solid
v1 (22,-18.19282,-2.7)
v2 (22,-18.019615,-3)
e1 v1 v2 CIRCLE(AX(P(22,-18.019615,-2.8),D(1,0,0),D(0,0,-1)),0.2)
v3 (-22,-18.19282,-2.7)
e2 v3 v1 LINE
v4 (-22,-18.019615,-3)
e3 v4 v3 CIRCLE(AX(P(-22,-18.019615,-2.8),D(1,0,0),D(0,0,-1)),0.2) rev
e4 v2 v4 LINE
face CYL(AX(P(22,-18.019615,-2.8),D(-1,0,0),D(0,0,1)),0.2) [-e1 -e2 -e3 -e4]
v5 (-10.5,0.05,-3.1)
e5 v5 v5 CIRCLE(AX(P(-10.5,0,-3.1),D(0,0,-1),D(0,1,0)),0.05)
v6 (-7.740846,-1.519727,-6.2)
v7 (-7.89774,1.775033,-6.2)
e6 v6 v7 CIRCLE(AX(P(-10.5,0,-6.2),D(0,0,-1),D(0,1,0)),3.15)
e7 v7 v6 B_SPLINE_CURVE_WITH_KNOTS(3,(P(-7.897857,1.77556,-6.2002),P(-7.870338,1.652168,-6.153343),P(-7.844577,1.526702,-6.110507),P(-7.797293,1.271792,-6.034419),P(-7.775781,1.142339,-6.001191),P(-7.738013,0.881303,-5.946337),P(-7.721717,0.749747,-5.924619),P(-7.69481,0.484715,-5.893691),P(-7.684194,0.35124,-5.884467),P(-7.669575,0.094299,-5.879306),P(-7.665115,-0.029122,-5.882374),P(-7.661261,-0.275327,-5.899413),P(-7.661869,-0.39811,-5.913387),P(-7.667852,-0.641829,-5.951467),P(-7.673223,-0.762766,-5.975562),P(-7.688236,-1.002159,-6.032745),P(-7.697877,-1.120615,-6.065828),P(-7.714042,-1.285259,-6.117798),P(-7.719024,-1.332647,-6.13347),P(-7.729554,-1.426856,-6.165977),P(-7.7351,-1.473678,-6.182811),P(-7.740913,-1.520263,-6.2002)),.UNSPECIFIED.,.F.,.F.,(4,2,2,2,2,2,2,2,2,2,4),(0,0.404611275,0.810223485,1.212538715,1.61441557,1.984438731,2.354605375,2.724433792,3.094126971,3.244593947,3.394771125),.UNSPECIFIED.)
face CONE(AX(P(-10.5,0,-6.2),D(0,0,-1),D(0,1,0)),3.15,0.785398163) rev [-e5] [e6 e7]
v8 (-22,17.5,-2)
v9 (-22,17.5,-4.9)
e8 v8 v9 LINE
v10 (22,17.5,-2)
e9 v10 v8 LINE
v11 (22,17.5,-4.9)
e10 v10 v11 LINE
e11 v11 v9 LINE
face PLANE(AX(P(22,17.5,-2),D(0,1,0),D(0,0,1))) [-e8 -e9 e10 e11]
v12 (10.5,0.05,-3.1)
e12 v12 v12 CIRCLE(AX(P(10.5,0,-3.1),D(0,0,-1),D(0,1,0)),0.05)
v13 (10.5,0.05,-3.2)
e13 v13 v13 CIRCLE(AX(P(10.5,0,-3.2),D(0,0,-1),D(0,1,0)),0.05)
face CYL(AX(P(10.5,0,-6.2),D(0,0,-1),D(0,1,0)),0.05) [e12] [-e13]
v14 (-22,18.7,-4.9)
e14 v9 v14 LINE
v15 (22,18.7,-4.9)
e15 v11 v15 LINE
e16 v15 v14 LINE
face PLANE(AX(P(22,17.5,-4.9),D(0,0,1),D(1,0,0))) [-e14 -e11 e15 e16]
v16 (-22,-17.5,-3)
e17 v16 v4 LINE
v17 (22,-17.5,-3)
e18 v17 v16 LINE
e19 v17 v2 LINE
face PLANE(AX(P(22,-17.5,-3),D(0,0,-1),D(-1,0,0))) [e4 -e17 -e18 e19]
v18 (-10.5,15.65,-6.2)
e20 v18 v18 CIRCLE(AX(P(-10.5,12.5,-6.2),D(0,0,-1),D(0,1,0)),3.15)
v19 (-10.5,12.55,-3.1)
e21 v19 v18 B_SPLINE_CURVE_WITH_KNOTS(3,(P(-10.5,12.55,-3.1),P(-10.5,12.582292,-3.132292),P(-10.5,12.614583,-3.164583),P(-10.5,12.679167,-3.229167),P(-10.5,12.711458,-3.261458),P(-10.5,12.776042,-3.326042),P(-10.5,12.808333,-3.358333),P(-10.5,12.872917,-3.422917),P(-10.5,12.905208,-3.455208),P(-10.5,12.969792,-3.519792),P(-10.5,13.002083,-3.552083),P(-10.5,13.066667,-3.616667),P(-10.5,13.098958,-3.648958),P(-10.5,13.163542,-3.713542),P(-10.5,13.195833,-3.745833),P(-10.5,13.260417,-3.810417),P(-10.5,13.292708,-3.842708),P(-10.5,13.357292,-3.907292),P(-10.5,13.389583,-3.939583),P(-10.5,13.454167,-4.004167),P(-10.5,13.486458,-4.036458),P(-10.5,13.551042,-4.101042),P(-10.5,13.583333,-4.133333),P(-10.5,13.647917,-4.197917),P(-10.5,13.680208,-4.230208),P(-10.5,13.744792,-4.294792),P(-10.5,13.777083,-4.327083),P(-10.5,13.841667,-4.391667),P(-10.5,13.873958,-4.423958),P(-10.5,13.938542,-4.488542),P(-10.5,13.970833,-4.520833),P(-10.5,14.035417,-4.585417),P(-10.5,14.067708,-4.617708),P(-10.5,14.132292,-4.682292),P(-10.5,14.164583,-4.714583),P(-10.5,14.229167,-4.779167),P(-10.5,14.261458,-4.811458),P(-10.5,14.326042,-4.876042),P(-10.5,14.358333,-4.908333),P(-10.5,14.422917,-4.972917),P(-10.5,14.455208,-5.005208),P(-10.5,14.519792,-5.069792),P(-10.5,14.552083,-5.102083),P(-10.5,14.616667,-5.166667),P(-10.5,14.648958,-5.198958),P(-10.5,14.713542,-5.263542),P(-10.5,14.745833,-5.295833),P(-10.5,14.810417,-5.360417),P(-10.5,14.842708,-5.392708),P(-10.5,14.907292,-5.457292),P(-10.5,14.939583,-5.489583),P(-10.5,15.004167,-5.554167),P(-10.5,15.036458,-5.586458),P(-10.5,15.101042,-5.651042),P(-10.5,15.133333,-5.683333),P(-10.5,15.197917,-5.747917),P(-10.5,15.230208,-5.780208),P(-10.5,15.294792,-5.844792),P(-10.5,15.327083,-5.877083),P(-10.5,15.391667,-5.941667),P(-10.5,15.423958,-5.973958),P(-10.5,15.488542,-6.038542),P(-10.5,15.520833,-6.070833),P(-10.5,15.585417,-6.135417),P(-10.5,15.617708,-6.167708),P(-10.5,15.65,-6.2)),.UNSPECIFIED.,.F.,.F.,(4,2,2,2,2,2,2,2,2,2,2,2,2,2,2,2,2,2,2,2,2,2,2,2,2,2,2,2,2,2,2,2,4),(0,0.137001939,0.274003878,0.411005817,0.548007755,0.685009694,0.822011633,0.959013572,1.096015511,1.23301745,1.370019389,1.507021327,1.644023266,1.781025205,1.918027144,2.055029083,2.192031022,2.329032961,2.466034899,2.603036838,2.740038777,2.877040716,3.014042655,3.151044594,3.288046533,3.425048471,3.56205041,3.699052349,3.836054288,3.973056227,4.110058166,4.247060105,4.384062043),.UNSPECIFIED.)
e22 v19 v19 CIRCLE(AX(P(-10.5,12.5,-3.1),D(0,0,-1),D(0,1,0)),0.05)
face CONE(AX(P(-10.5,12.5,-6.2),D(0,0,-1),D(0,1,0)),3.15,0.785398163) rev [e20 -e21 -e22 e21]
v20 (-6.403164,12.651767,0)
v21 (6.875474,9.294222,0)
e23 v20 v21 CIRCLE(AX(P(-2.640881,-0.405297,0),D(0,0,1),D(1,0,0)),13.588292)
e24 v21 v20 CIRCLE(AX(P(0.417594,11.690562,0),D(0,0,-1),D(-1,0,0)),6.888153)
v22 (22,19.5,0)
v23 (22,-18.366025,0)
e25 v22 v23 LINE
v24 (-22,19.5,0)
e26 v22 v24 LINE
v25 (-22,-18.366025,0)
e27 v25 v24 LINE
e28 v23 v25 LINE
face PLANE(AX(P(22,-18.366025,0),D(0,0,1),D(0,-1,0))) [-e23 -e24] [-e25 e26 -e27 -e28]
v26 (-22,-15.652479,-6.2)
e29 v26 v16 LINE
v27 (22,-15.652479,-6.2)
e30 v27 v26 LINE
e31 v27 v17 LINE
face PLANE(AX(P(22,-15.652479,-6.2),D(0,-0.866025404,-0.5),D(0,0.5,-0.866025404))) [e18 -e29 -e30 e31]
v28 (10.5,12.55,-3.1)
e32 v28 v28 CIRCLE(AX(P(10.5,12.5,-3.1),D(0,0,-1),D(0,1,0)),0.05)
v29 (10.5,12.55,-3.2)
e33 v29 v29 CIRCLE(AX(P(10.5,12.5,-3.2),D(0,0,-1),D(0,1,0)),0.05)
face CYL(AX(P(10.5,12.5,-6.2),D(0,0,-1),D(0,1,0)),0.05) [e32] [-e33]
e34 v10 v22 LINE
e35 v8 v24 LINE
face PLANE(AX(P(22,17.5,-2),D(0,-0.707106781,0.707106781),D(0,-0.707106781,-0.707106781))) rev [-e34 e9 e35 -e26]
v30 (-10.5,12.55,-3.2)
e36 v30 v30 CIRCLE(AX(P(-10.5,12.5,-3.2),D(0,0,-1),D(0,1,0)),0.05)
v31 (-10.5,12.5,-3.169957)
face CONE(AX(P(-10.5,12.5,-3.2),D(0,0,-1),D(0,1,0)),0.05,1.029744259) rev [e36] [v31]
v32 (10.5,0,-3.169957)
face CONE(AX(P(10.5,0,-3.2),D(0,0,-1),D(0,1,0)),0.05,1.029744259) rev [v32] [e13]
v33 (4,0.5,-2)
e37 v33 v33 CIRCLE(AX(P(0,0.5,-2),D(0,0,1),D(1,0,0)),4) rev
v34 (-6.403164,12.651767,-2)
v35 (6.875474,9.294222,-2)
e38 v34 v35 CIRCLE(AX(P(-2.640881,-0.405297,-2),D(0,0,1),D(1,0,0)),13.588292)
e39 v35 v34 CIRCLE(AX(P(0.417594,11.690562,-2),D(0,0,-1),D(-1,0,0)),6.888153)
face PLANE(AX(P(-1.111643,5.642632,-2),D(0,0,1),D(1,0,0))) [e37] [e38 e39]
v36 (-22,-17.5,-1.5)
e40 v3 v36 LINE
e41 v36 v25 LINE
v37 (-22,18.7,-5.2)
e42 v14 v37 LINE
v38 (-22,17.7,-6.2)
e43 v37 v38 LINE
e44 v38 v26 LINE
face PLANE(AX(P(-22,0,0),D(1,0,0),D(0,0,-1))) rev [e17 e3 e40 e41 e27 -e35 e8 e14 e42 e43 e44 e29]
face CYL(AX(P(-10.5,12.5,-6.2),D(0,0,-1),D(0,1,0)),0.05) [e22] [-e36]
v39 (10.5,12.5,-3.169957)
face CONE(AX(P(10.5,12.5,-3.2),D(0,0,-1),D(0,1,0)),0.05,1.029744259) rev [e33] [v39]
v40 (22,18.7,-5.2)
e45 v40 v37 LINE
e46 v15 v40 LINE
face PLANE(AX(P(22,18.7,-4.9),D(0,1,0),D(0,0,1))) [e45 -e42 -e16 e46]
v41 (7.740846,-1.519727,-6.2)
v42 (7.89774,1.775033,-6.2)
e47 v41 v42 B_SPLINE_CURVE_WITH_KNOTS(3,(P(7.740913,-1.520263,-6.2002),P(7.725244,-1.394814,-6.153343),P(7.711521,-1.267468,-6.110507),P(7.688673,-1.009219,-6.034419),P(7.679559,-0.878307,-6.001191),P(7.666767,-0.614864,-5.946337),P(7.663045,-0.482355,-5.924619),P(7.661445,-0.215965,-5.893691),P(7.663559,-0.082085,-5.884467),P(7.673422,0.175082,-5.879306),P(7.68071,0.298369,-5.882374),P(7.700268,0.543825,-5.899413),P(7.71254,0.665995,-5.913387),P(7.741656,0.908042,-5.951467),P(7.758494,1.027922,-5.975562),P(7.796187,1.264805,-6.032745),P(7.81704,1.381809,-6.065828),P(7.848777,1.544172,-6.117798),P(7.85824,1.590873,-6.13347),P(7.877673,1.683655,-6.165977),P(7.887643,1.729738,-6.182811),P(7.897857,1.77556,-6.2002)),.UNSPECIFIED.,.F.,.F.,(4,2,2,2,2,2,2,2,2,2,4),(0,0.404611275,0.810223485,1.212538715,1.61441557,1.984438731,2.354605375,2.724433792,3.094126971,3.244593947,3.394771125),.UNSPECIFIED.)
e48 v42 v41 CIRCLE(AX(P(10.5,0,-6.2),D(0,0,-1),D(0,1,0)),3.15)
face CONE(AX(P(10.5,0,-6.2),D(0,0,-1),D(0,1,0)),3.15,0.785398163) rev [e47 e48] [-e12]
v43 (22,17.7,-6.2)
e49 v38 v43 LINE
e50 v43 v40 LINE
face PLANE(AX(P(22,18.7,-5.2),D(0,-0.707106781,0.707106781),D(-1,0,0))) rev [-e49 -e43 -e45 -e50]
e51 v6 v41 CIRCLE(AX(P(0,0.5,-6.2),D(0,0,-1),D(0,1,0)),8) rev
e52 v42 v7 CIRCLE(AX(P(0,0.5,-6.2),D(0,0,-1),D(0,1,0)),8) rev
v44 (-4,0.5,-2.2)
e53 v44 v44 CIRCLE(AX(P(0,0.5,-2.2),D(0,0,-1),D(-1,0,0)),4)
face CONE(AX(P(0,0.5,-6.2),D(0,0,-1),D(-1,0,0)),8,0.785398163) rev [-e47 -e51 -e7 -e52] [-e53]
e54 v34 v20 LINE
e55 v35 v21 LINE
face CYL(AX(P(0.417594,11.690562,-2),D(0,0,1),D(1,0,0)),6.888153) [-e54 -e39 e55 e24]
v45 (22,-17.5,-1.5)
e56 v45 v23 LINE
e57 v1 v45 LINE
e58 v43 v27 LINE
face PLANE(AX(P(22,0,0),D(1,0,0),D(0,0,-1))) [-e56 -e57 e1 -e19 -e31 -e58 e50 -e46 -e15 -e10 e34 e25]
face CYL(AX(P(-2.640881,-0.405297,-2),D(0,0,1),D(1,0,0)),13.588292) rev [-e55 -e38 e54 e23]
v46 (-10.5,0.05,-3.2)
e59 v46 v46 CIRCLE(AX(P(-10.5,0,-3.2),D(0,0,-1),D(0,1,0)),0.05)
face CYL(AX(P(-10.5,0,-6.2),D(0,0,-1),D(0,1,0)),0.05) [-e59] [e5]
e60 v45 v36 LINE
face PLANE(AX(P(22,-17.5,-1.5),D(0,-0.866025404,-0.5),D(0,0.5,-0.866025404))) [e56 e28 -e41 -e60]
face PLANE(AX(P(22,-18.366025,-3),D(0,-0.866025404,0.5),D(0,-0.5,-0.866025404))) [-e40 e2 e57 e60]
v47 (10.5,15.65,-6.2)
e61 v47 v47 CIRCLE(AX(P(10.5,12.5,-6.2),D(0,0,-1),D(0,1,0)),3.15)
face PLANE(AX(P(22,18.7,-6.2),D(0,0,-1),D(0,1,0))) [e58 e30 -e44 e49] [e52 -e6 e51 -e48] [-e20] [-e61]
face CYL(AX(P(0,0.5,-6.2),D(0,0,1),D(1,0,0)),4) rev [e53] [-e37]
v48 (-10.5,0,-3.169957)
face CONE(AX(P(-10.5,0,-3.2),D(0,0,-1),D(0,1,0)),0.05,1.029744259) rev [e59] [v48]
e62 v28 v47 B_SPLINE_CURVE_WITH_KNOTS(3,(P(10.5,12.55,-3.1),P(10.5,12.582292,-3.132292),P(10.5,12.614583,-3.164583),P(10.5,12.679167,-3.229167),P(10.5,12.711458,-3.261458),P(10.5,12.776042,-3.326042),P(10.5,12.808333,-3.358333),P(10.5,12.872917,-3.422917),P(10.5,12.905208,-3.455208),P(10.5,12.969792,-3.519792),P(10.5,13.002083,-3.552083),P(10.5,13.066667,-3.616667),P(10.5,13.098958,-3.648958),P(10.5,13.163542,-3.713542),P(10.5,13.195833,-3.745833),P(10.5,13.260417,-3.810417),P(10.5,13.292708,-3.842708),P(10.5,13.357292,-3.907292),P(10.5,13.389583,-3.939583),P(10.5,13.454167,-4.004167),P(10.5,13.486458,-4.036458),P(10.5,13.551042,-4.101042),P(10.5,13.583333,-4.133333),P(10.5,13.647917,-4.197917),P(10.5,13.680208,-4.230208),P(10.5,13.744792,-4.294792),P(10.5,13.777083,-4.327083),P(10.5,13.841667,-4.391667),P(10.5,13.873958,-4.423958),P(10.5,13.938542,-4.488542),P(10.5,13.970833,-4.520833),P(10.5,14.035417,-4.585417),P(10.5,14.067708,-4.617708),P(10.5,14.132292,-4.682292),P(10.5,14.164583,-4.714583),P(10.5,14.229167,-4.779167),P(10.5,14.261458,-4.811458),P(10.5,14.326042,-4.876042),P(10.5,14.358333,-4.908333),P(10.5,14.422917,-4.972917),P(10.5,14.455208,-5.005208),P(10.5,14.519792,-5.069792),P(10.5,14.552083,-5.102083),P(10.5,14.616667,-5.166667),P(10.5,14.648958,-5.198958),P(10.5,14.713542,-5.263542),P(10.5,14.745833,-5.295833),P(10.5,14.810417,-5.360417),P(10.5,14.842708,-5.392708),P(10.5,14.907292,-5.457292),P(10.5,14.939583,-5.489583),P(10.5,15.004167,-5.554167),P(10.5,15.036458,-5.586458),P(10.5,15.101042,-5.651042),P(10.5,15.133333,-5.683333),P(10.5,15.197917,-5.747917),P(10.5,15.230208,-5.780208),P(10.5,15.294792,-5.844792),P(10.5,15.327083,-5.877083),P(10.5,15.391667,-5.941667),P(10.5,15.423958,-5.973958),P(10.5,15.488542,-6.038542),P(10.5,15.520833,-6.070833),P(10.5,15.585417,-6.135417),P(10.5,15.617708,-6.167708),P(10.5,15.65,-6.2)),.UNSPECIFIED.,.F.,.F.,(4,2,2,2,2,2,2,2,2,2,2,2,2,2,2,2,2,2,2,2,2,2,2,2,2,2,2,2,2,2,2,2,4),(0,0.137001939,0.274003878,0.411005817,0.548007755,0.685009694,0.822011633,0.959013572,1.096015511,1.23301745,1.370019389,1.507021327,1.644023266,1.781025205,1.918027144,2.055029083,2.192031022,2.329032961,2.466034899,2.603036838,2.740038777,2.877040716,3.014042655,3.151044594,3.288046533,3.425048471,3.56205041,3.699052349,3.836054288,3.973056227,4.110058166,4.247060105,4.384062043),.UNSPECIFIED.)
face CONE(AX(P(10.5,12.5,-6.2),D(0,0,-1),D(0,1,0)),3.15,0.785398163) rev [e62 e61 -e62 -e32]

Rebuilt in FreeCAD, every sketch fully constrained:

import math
import FreeCAD as App
import Part
import Sketcher
Q = App.Units.Quantity


def edges_at(feature, points):
    """Names of the edges that pass closest to the given points."""
    edges = feature.Shape.Edges
    near = lambda p: min(range(len(edges)), key=lambda i: edges[i].distToShape(Part.Vertex(*p))[0])
    return sorted({f"Edge{near(p) + 1}" for p in points})


def add_polygon(sketch, points):
    """Adds a closed chain of lines whose ends are joined by coincident constraints."""
    first, n = sketch.GeometryCount, len(points)
    for a, b in zip(points, points[1:] + points[:1]):
        sketch.addGeometry(Part.LineSegment(App.Vector(*a, 0), App.Vector(*b, 0)), False)
    for i in range(n):
        sketch.addConstraint(Sketcher.Constraint("Coincident", first + i, 2, first + (i + 1) % n, 1))

doc = App.newDocument("Part")
body = doc.addObject("PartDesign::Body", "Body")

# Sketch on YZ plane
sketch1 = doc.addObject("Sketcher::SketchObject", "Sketch")
body.addObject(sketch1)
sketch1.AttachmentSupport = (doc.YZ_Plane, [""])
sketch1.MapMode = "FlatFace"
add_polygon(sketch1, [(17.5, -4.9), (17.5, -2), (19.5, 0), (-18.4, 0), (-17.5, -1.5), (-18.4, -3), (-17.5, -3), (-15.7, -6.2), (18.7, -6.2), (18.7, -4.9)])  # lines 0-9
sketch1.addConstraint(Sketcher.Constraint("Vertical", 0))
sketch1.addConstraint(Sketcher.Constraint("Horizontal", 2))
sketch1.addConstraint(Sketcher.Constraint("Horizontal", 5))
sketch1.addConstraint(Sketcher.Constraint("Horizontal", 7))
sketch1.addConstraint(Sketcher.Constraint("Vertical", 8))
sketch1.addConstraint(Sketcher.Constraint("Horizontal", 9))
sketch1.addConstraint(Sketcher.Constraint("PointOnObject", 1, 2, -1))
sketch1.addConstraint(Sketcher.Constraint("Parallel", 3, 6))
sketch1.addConstraint(Sketcher.Constraint("Vertical", 2, 2, 4, 2))
sketch1.addConstraint(Sketcher.Constraint("Vertical", 3, 2, 5, 2))
sketch1.addConstraint(Sketcher.Constraint("Equal", 3, 4))
sketch1.addConstraint(Sketcher.Constraint("Angle", 1, Q("45 deg")))
sketch1.addConstraint(Sketcher.Constraint("Angle", 3, Q("-60 deg")))
sketch1.addConstraint(Sketcher.Constraint("DistanceX", 9, 2, 9, 1, 1.2))
sketch1.addConstraint(Sketcher.Constraint("DistanceY", 0, 1, 0, 2, 2.9))
sketch1.addConstraint(Sketcher.Constraint("DistanceY", 8, 1, 8, 2, 1.3))
sketch1.addConstraint(Sketcher.Constraint("DistanceY", 0, 2, -1, 1, 2.0))
sketch1.addConstraint(Sketcher.Constraint("DistanceY", 4, 2, -1, 1, 3.0))
sketch1.addConstraint(Sketcher.Constraint("DistanceX", 3, 2, 0, 2, 35.0))
sketch1.addConstraint(Sketcher.Constraint("DistanceX", -1, 1, 0, 2, 17.5))
pad1 = doc.addObject("PartDesign::Pad", "Pad")
body.addObject(pad1)
pad1.Profile = sketch1
pad1.Length = 44
pad1.Midplane = True

# Sketch on XY plane
sketch2 = doc.addObject("Sketcher::SketchObject", "Sketch001")
body.addObject(sketch2)
sketch2.AttachmentSupport = (doc.XY_Plane, [""])
sketch2.MapMode = "FlatFace"
sketch2.addGeometry(Part.Circle(App.Vector(0, 0.5, 0), App.Vector(0, 0, 1), 4), False)
sketch2.addConstraint(Sketcher.Constraint("PointOnObject", 0, 3, -2))
sketch2.addConstraint(Sketcher.Constraint("Diameter", 0, 8.0))
sketch2.addConstraint(Sketcher.Constraint("DistanceY", -1, 1, 0, 3, 0.5))
pocket1 = doc.addObject("PartDesign::Pocket", "Pocket")
body.addObject(pocket1)
pocket1.Profile = sketch2
pocket1.Type = "ThroughAll"
pocket1.Midplane = True
doc.recompute()

chamfer = doc.addObject("PartDesign::Chamfer", "Chamfer")
body.addObject(chamfer)
chamfer.Base = (pocket1, edges_at(pocket1, [(0, 18.7, -6.2)]))
chamfer.Size = 1
doc.recompute()

chamfer2 = doc.addObject("PartDesign::Chamfer", "Chamfer001")
body.addObject(chamfer2)
chamfer2.Base = (chamfer, edges_at(chamfer, [(-4, 0.5, -6.2)]))
chamfer2.Size = 4

# Sketch on YZ plane
sketch3 = doc.addObject("Sketcher::SketchObject", "Sketch002")
body.addObject(sketch3)
sketch3.AttachmentSupport = (doc.YZ_Plane, [""])
sketch3.MapMode = "FlatFace"
sketch3.AttachmentOffset = App.Placement(App.Vector(0, 0, 10.5), App.Rotation())
add_polygon(sketch3, [(12.5, -3.17), (12.5, -6.2), (15.65, -6.2), (12.55, -3.1), (12.55, -3.2)])  # lines 0-4
sketch3.addGeometry(Part.LineSegment(App.Vector(12.5, -6.2, 0), App.Vector(12.5, -3.1, 0)), True)  # axis
sketch3.addConstraint(Sketcher.Constraint("Vertical", 0))
sketch3.addConstraint(Sketcher.Constraint("Horizontal", 1))
sketch3.addConstraint(Sketcher.Constraint("Vertical", 3))
sketch3.addConstraint(Sketcher.Constraint("Vertical", 5))
sketch3.addConstraint(Sketcher.Constraint("Coincident", 5, 1, 0, 2))
sketch3.addConstraint(Sketcher.Constraint("Horizontal", 2, 2, 5, 2))
sketch3.addConstraint(Sketcher.Constraint("Angle", 2, Q("135 deg")))
sketch3.addConstraint(Sketcher.Constraint("Angle", 4, Q("149 deg")))
sketch3.addConstraint(Sketcher.Constraint("DistanceY", 3, 2, 3, 1, 0.1))
sketch3.addConstraint(Sketcher.Constraint("DistanceY", 5, 1, 5, 2, 3.1))
sketch3.addConstraint(Sketcher.Constraint("DistanceX", 1, 1, 1, 2, 3.15))
sketch3.addConstraint(Sketcher.Constraint("DistanceX", -1, 1, 0, 2, 12.5))
sketch3.addConstraint(Sketcher.Constraint("DistanceY", 0, 2, -1, 1, 6.2))
groove = doc.addObject("PartDesign::Groove", "Groove")
body.addObject(groove)
groove.Profile = sketch3
groove.ReferenceAxis = (sketch3, ["Axis0"])
groove.Angle = 360
doc.recompute()

linearpattern = doc.addObject("PartDesign::LinearPattern", "LinearPattern")
body.addObject(linearpattern)
linearpattern.Originals = [groove]
linearpattern.Direction = (doc.X_Axis, [""])
linearpattern.Mode = "offset"
linearpattern.Offset = 21
linearpattern.Occurrences = 2
linearpattern.Reversed = True
body.Tip = linearpattern
doc.recompute()

datumline = doc.addObject("PartDesign::Line", "DatumLine")
body.addObject(datumline)
datumline.Placement = App.Placement(App.Vector(0, 0, 0), App.Rotation(App.Vector(0, 0, 1), App.Vector(-0.859292884, -0.51148386, 0)))
linearpattern2 = doc.addObject("PartDesign::LinearPattern", "LinearPattern001")
body.addObject(linearpattern2)
linearpattern2.Originals = [groove]
linearpattern2.Direction = (datumline, [""])
linearpattern2.Mode = "offset"
linearpattern2.Offset = 24.438699
linearpattern2.Occurrences = 2
body.Tip = linearpattern2
doc.recompute()

linearpattern3 = doc.addObject("PartDesign::LinearPattern", "LinearPattern002")
body.addObject(linearpattern3)
linearpattern3.Originals = [groove]
linearpattern3.Direction = (doc.Y_Axis, [""])
linearpattern3.Mode = "offset"
linearpattern3.Offset = 12.5
linearpattern3.Occurrences = 2
linearpattern3.Reversed = True
body.Tip = linearpattern3
doc.recompute()

fillet = doc.addObject("PartDesign::Fillet", "Fillet")
body.addObject(fillet)
fillet.Base = (linearpattern3, edges_at(linearpattern3, [(0, -18.366, -3)]))
fillet.Radius = 0.2

# Sketch on XY plane
sketch4 = doc.addObject("Sketcher::SketchObject", "Sketch003")
body.addObject(sketch4)
sketch4.AttachmentSupport = (doc.XY_Plane, [""])
sketch4.MapMode = "FlatFace"
sketch4.addGeometry(Part.ArcOfCircle(Part.Circle(App.Vector(0, 12, 0), App.Vector(0, 0, 1), 7), math.radians(172), math.radians(340)), False)
sketch4.addGeometry(Part.ArcOfCircle(Part.Circle(App.Vector(-3, 0, 0), App.Vector(0, 0, 1), 14), math.radians(106), math.radians(406)), False)
sketch4.addConstraint(Sketcher.Constraint("Coincident", 0, 1, 1, 1))
sketch4.addConstraint(Sketcher.Constraint("Coincident", 1, 2, 0, 2))
sketch4.addConstraint(Sketcher.Constraint("Radius", 0, 6.888153))
sketch4.addConstraint(Sketcher.Constraint("Radius", 1, 13.588292))
sketch4.addConstraint(Sketcher.Constraint("DistanceX", 1, 3, -1, 1, 2.640881))
sketch4.addConstraint(Sketcher.Constraint("DistanceY", 1, 3, 0, 3, 12.095859))
sketch4.addConstraint(Sketcher.Constraint("DistanceX", 0, 1, 0, 3, 6.820758))
sketch4.addConstraint(Sketcher.Constraint("DistanceY", -1, 1, 0, 3, 11.690562))
pocket2 = doc.addObject("PartDesign::Pocket", "Pocket001")
body.addObject(pocket2)
pocket2.Profile = sketch4
pocket2.Length = 2

doc.recompute()
